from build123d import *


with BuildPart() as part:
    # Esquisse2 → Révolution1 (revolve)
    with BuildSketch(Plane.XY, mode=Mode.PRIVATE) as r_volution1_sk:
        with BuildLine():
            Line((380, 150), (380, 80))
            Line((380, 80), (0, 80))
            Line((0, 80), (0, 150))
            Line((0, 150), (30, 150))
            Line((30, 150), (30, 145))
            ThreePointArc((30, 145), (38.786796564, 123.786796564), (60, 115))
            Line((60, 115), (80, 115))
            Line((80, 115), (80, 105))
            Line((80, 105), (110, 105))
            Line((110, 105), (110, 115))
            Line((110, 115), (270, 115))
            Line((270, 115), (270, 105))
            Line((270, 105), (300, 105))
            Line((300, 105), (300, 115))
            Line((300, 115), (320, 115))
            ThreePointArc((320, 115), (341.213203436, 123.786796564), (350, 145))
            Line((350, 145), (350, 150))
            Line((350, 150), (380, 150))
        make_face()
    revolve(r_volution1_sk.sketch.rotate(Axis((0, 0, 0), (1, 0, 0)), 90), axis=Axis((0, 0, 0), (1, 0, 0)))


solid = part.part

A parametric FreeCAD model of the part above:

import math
import FreeCAD as App
import Part
import Sketcher

V = App.Vector

doc = App.newDocument("Part")
body = doc.addObject("PartDesign::Body", "Body")

# Sketch on XY plane
sketch1 = body.newObject("Sketcher::SketchObject", "Sketch")
sketch1.AttachmentSupport = (doc.getObject("XY_Plane"), [""])
sketch1.MapMode = "FlatFace"
sketch1.addGeometry([
    Part.LineSegment(V(380, 80, 0), V(380, 150, 0)),  # 0
    Part.LineSegment(V(380, 150, 0), V(350, 150, 0)),  # 1
    Part.LineSegment(V(350, 150, 0), V(350, 145, 0)),  # 2
    Part.ArcOfCircle(Part.Circle(V(320, 145, 0), V(0, 0, 1), 30), math.radians(-90), math.radians(0)),  # 3
    Part.LineSegment(V(320, 115, 0), V(300, 115, 0)),  # 4
    Part.LineSegment(V(300, 115, 0), V(300, 105, 0)),  # 5
    Part.LineSegment(V(300, 105, 0), V(270, 105, 0)),  # 6
    Part.LineSegment(V(270, 105, 0), V(270, 115, 0)),  # 7
    Part.LineSegment(V(270, 115, 0), V(110, 115, 0)),  # 8
    Part.LineSegment(V(110, 115, 0), V(110, 105, 0)),  # 9
    Part.LineSegment(V(110, 105, 0), V(80, 105, 0)),  # 10
    Part.LineSegment(V(80, 105, 0), V(80, 115, 0)),  # 11
    Part.LineSegment(V(80, 115, 0), V(60, 115, 0)),  # 12
    Part.ArcOfCircle(Part.Circle(V(60, 145, 0), V(0, 0, 1), 30), math.radians(180), math.radians(270)),  # 13
    Part.LineSegment(V(30, 145, 0), V(30, 150, 0)),  # 14
    Part.LineSegment(V(30, 150, 0), V(0, 150, 0)),  # 15
    Part.LineSegment(V(0, 150, 0), V(0, 80, 0)),  # 16
    Part.LineSegment(V(0, 80, 0), V(380, 80, 0)),  # 17
], False)
sketch1.addConstraint([
    Sketcher.Constraint("Coincident", 0, 2, 1, 1),
    Sketcher.Constraint("Coincident", 1, 2, 2, 1),
    Sketcher.Constraint("Tangent", 2, 2, 3, 2),
    Sketcher.Constraint("Tangent", 3, 1, 4, 1),
    Sketcher.Constraint("Coincident", 4, 2, 5, 1),
    Sketcher.Constraint("Coincident", 5, 2, 6, 1),
    Sketcher.Constraint("Coincident", 6, 2, 7, 1),
    Sketcher.Constraint("Coincident", 7, 2, 8, 1),
    Sketcher.Constraint("Coincident", 8, 2, 9, 1),
    Sketcher.Constraint("Coincident", 9, 2, 10, 1),
    Sketcher.Constraint("Coincident", 10, 2, 11, 1),
    Sketcher.Constraint("Coincident", 11, 2, 12, 1),
    Sketcher.Constraint("Tangent", 12, 2, 13, 2),
    Sketcher.Constraint("Tangent", 13, 1, 14, 1),
    Sketcher.Constraint("Coincident", 14, 2, 15, 1),
    Sketcher.Constraint("Coincident", 15, 2, 16, 1),
    Sketcher.Constraint("Coincident", 16, 2, 17, 1),
    Sketcher.Constraint("Coincident", 17, 2, 0, 1),
    Sketcher.Constraint("Vertical", 0),
    Sketcher.Constraint("Horizontal", 1),
    Sketcher.Constraint("Vertical", 2),
    Sketcher.Constraint("Horizontal", 4),
    Sketcher.Constraint("Vertical", 5),
    Sketcher.Constraint("Horizontal", 6),
    Sketcher.Constraint("Vertical", 7),
    Sketcher.Constraint("Horizontal", 8),
    Sketcher.Constraint("Vertical", 9),
    Sketcher.Constraint("Horizontal", 10),
    Sketcher.Constraint("Vertical", 11),
    Sketcher.Constraint("Horizontal", 12),
    Sketcher.Constraint("Vertical", 14),
    Sketcher.Constraint("Horizontal", 15),
    Sketcher.Constraint("Vertical", 16),
    Sketcher.Constraint("Horizontal", 17),
    Sketcher.Constraint("Equal", 3, 13),
    Sketcher.Constraint("PointOnObject", 15, 2, -2),
    Sketcher.Constraint("Horizontal", 3, 3, 13, 3),
    Sketcher.Constraint("Horizontal", 4, 2, 7, 2),
    Sketcher.Constraint("Horizontal", 6, 2, 9, 2),
    Sketcher.Constraint("Horizontal", 1, 2, 14, 2),
    Sketcher.Constraint("Equal", 1, 6),
    Sketcher.Constraint("Equal", 6, 10),
    Sketcher.Constraint("Equal", 4, 12),
    Sketcher.Constraint("Equal", 10, 15),
    Sketcher.Constraint("Radius", 3, 30.0),
    Sketcher.Constraint("DistanceX", 1, 2, 1, 1, 30.0),
    Sketcher.Constraint("DistanceX", 4, 2, 4, 1, 20.0),
    Sketcher.Constraint("DistanceX", 8, 2, 8, 1, 160.0),
    Sketcher.Constraint("DistanceY", 0, 1, 0, 2, 70.0),
    Sketcher.Constraint("DistanceY", 2, 2, 2, 1, 5.0),
    Sketcher.Constraint("DistanceY", 5, 2, 5, 1, 10.0),
    Sketcher.Constraint("DistanceY", -1, 1, 3, 3, 145.0),
])
revolution = body.newObject("PartDesign::Revolution", "Revolution")
revolution.Profile = sketch1
revolution.ReferenceAxis = (sketch1, ["H_Axis"])
revolution.Angle = 360

doc.recompute()
